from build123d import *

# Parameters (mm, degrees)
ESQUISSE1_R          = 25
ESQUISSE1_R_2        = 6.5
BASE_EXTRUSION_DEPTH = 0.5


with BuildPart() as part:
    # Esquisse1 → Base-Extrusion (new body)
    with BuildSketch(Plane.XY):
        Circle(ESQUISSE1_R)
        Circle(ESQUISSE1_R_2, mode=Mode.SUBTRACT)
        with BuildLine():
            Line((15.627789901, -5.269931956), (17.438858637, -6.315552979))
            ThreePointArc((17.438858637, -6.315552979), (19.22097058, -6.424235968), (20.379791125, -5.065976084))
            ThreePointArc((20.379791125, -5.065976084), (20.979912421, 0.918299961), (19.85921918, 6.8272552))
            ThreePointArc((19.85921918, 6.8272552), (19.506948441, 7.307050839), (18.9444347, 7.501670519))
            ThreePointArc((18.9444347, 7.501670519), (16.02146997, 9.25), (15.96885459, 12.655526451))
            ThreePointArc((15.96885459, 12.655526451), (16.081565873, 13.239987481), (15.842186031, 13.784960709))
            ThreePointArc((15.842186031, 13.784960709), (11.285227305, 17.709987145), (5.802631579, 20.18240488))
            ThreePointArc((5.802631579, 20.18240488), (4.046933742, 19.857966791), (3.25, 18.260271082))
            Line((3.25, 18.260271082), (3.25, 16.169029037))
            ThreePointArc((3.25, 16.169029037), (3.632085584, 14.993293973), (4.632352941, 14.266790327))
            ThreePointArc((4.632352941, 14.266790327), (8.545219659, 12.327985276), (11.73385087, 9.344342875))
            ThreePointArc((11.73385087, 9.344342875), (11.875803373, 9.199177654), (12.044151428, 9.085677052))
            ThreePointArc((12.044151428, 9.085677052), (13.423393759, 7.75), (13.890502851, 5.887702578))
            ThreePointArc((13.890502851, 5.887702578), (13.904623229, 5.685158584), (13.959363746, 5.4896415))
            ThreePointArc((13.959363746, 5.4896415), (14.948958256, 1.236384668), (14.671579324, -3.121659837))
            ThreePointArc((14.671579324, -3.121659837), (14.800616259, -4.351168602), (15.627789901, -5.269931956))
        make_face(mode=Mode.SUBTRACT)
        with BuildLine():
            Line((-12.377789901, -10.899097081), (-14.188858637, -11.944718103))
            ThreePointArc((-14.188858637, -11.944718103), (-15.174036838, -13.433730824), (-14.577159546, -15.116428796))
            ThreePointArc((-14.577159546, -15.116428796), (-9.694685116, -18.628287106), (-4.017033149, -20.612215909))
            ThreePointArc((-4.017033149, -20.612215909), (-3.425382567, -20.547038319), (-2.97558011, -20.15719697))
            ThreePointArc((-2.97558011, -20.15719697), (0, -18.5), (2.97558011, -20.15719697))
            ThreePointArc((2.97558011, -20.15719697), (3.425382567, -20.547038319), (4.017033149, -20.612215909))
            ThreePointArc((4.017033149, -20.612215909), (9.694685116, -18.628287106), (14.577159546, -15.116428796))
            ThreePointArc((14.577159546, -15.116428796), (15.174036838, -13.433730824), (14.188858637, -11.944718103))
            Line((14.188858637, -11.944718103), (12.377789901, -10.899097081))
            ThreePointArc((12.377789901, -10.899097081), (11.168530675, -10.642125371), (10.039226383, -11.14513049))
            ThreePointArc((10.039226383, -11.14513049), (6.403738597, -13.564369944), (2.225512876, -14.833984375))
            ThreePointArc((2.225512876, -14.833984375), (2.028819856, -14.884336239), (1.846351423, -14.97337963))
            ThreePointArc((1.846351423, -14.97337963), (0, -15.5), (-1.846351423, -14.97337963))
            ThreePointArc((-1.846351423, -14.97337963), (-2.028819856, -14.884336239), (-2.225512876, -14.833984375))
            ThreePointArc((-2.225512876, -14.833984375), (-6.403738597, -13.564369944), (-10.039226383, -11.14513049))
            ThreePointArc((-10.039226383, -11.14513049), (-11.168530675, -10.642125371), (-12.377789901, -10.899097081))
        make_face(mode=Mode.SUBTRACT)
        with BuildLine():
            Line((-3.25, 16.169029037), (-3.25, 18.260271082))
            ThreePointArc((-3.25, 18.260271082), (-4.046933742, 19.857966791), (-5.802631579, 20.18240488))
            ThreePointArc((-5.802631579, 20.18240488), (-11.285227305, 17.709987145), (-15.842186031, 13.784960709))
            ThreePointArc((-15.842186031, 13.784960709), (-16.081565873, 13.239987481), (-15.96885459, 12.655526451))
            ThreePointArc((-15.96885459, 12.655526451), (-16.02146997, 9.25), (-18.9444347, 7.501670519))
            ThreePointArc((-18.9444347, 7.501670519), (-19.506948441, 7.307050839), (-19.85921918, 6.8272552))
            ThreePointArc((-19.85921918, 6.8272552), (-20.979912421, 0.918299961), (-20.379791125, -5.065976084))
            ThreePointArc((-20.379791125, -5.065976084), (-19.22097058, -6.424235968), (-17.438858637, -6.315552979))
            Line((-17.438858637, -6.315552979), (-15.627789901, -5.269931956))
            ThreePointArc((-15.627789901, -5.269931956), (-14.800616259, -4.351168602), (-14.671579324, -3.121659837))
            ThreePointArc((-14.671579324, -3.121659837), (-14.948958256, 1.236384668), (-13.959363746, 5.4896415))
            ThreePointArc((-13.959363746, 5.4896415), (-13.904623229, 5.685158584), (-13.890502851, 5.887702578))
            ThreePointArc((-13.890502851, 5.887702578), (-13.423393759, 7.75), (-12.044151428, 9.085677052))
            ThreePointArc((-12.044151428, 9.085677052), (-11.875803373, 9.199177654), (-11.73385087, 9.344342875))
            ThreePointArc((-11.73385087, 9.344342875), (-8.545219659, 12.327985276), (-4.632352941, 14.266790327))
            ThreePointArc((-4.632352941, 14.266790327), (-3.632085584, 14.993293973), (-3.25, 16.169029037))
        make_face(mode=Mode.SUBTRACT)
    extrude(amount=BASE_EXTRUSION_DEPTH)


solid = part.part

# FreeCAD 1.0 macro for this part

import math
import FreeCAD as App
import Part
import Sketcher

V = App.Vector
Q = App.Units.Quantity

doc = App.newDocument("Part")
body = doc.addObject("PartDesign::Body", "Body")

sketch1 = doc.addObject("Sketcher::SketchObject", "Sketch")
body.addObject(sketch1)
sketch1.AttachmentSupport = (doc.XY_Plane, [""])
sketch1.MapMode = "FlatFace"
sketch1.addGeometry([
    Part.Circle(V(0, 0, 0), V(0, 0, 1), 25),
    Part.LineSegment(V(-14.19, -11.94, 0), V(-12.38, -10.9, 0)),
    Part.ArcOfCircle(Part.Circle(V(-11.38, -12.63, 0), V(0, 0, 1), 2), math.radians(48), math.radians(120)),
    Part.ArcOfCircle(Part.Circle(V(0, 0, 0), V(0, 0, 1), 15), math.radians(-132), math.radians(-99)),
    Part.ArcOfCircle(Part.Circle(V(-2.37, -15.82, 0), V(0, 0, 1), 1), math.radians(58), math.radians(81)),
    Part.ArcOfCircle(Part.Circle(V(0, -12, 0), V(0, 0, 1), 3.5), math.radians(-122), math.radians(-58)),
    Part.ArcOfCircle(Part.Circle(V(2.37, -15.82, 0), V(0, 0, 1), 1), math.radians(99), math.radians(122)),
    Part.ArcOfCircle(Part.Circle(V(0, 0, 0), V(0, 0, 1), 15), math.radians(-81), math.radians(-48)),
    Part.ArcOfCircle(Part.Circle(V(11.38, -12.63, 0), V(0, 0, 1), 2), math.radians(60), math.radians(132)),
    Part.LineSegment(V(12.38, -10.9, 0), V(14.19, -11.94, 0)),
    Part.ArcOfCircle(Part.Circle(V(13.19, -13.68, 0), V(0, 0, 1), 2), math.radians(-46), math.radians(60)),
    Part.ArcOfCircle(Part.Circle(V(0, 0, 0), V(0, 0, 1), 21), math.radians(-79), math.radians(-46)),
    Part.ArcOfCircle(Part.Circle(V(3.83, -19.63, 0), V(0, 0, 1), 1), math.radians(-148), math.radians(-79)),
    Part.ArcOfCircle(Part.Circle(V(0, -22, 0), V(0, 0, 1), 3.5), math.radians(32), math.radians(148)),
    Part.ArcOfCircle(Part.Circle(V(-3.83, -19.63, 0), V(0, 0, 1), 1), math.radians(-101), math.radians(-32)),
    Part.ArcOfCircle(Part.Circle(V(0, 0, 0), V(0, 0, 1), 21), math.radians(-134), math.radians(-101)),
    Part.ArcOfCircle(Part.Circle(V(-13.19, -13.68, 0), V(0, 0, 1), 2), math.radians(120), math.radians(226)),
    Part.LineSegment(V(-3.25, 18.26, 0), V(-3.25, 16.17, 0)),
    Part.ArcOfCircle(Part.Circle(V(-5.25, 16.17, 0), V(0, 0, 1), 2), math.radians(-72), math.radians(0)),
    Part.ArcOfCircle(Part.Circle(V(0, 0, 0), V(0, 0, 1), 15), math.radians(108), math.radians(141)),
    Part.ArcOfCircle(Part.Circle(V(-12.52, 9.97, 0), V(0, 0, 1), 1), math.radians(-62), math.radians(-39)),
    Part.ArcOfCircle(Part.Circle(V(-10.39, 6, 0), V(0, 0, 1), 3.5), math.radians(118), math.radians(182)),
    Part.ArcOfCircle(Part.Circle(V(-14.89, 5.86, 0), V(0, 0, 1), 1), math.radians(-21), math.radians(2)),
    Part.ArcOfCircle(Part.Circle(V(0, 0, 0), V(0, 0, 1), 15), math.radians(159), math.radians(192)),
    Part.ArcOfCircle(Part.Circle(V(-16.63, -3.54, 0), V(0, 0, 1), 2), math.radians(-60), math.radians(12)),
    Part.LineSegment(V(-15.63, -5.27, 0), V(-17.44, -6.32, 0)),
    Part.ArcOfCircle(Part.Circle(V(-18.44, -4.58, 0), V(0, 0, 1), 2), math.radians(-166), math.radians(-60)),
    Part.ArcOfCircle(Part.Circle(V(0, 0, 0), V(0, 0, 1), 21), math.radians(161), math.radians(194)),
    Part.ArcOfCircle(Part.Circle(V(-18.91, 6.5, 0), V(0, 0, 1), 1), math.radians(92), math.radians(161)),
    Part.ArcOfCircle(Part.Circle(V(-19.05, 11, 0), V(0, 0, 1), 3.5), math.radians(-88), math.radians(28)),
    Part.ArcOfCircle(Part.Circle(V(-15.09, 13.13, 0), V(0, 0, 1), 1), math.radians(139), math.radians(208)),
    Part.ArcOfCircle(Part.Circle(V(0, 0, 0), V(0, 0, 1), 21), math.radians(106), math.radians(139)),
    Part.ArcOfCircle(Part.Circle(V(-5.25, 18.26, 0), V(0, 0, 1), 2), math.radians(0), math.radians(106)),
    Part.Circle(V(0, 0, 0), V(0, 0, 1), 6.5),
    Part.LineSegment(V(17.44, -6.32, 0), V(15.63, -5.27, 0)),
    Part.ArcOfCircle(Part.Circle(V(16.63, -3.54, 0), V(0, 0, 1), 2), math.radians(168), math.radians(240)),
    Part.ArcOfCircle(Part.Circle(V(0, 0, 0), V(0, 0, 1), 15), math.radians(-12), math.radians(21)),
    Part.ArcOfCircle(Part.Circle(V(14.89, 5.86, 0), V(0, 0, 1), 1), math.radians(178), math.radians(201)),
    Part.ArcOfCircle(Part.Circle(V(10.39, 6, 0), V(0, 0, 1), 3.5), math.radians(-2), math.radians(62)),
    Part.ArcOfCircle(Part.Circle(V(12.52, 9.97, 0), V(0, 0, 1), 1), math.radians(-141), math.radians(-118)),
    Part.ArcOfCircle(Part.Circle(V(0, 0, 0), V(0, 0, 1), 15), math.radians(39), math.radians(72)),
    Part.ArcOfCircle(Part.Circle(V(5.25, 16.17, 0), V(0, 0, 1), 2), math.radians(-180), math.radians(-108)),
    Part.LineSegment(V(3.25, 16.17, 0), V(3.25, 18.26, 0)),
    Part.ArcOfCircle(Part.Circle(V(5.25, 18.26, 0), V(0, 0, 1), 2), math.radians(74), math.radians(180)),
    Part.ArcOfCircle(Part.Circle(V(0, 0, 0), V(0, 0, 1), 21), math.radians(41), math.radians(74)),
    Part.ArcOfCircle(Part.Circle(V(15.09, 13.13, 0), V(0, 0, 1), 1), math.radians(-28), math.radians(41)),
    Part.ArcOfCircle(Part.Circle(V(19.05, 11, 0), V(0, 0, 1), 3.5), math.radians(152), math.radians(268)),
    Part.ArcOfCircle(Part.Circle(V(18.91, 6.5, 0), V(0, 0, 1), 1), math.radians(19), math.radians(88)),
    Part.ArcOfCircle(Part.Circle(V(0, 0, 0), V(0, 0, 1), 21), math.radians(-14), math.radians(19)),
    Part.ArcOfCircle(Part.Circle(V(18.44, -4.58, 0), V(0, 0, 1), 2), math.radians(-120), math.radians(-14)),
], False)
sketch1.addConstraint([
    Sketcher.Constraint("Tangent", 1, 2, 2, 2),
    Sketcher.Constraint("Tangent", 2, 1, 3, 1),
    Sketcher.Constraint("Tangent", 3, 2, 4, 2),
    Sketcher.Constraint("Tangent", 4, 1, 5, 1),
    Sketcher.Constraint("Tangent", 5, 2, 6, 2),
    Sketcher.Constraint("Tangent", 6, 1, 7, 1),
    Sketcher.Constraint("Tangent", 7, 2, 8, 2),
    Sketcher.Constraint("Tangent", 8, 1, 9, 1),
    Sketcher.Constraint("Tangent", 9, 2, 10, 2),
    Sketcher.Constraint("Tangent", 10, 1, 11, 2),
    Sketcher.Constraint("Tangent", 11, 1, 12, 2),
    Sketcher.Constraint("Tangent", 12, 1, 13, 1),
    Sketcher.Constraint("Tangent", 13, 2, 14, 2),
    Sketcher.Constraint("Tangent", 14, 1, 15, 2),
    Sketcher.Constraint("Tangent", 15, 1, 16, 2),
    Sketcher.Constraint("Tangent", 16, 1, 1, 1),
    Sketcher.Constraint("Tangent", 17, 2, 18, 2),
    Sketcher.Constraint("Tangent", 18, 1, 19, 1),
    Sketcher.Constraint("Tangent", 19, 2, 20, 2),
    Sketcher.Constraint("Tangent", 20, 1, 21, 1),
    Sketcher.Constraint("Tangent", 21, 2, 22, 2),
    Sketcher.Constraint("Tangent", 22, 1, 23, 1),
    Sketcher.Constraint("Tangent", 23, 2, 24, 2),
    Sketcher.Constraint("Tangent", 24, 1, 25, 1),
    Sketcher.Constraint("Tangent", 25, 2, 26, 2),
    Sketcher.Constraint("Tangent", 26, 1, 27, 2),
    Sketcher.Constraint("Tangent", 27, 1, 28, 2),
    Sketcher.Constraint("Tangent", 28, 1, 29, 1),
    Sketcher.Constraint("Tangent", 29, 2, 30, 2),
    Sketcher.Constraint("Tangent", 30, 1, 31, 2),
    Sketcher.Constraint("Tangent", 31, 1, 32, 2),
    Sketcher.Constraint("Tangent", 32, 1, 17, 1),
    Sketcher.Constraint("Tangent", 34, 2, 35, 2),
    Sketcher.Constraint("Tangent", 35, 1, 36, 1),
    Sketcher.Constraint("Tangent", 36, 2, 37, 2),
    Sketcher.Constraint("Tangent", 37, 1, 38, 1),
    Sketcher.Constraint("Tangent", 38, 2, 39, 2),
    Sketcher.Constraint("Tangent", 39, 1, 40, 1),
    Sketcher.Constraint("Tangent", 40, 2, 41, 2),
    Sketcher.Constraint("Tangent", 41, 1, 42, 1),
    Sketcher.Constraint("Tangent", 42, 2, 43, 2),
    Sketcher.Constraint("Tangent", 43, 1, 44, 2),
    Sketcher.Constraint("Tangent", 44, 1, 45, 2),
    Sketcher.Constraint("Tangent", 45, 1, 46, 1),
    Sketcher.Constraint("Tangent", 46, 2, 47, 2),
    Sketcher.Constraint("Tangent", 47, 1, 48, 2),
    Sketcher.Constraint("Tangent", 48, 1, 49, 2),
    Sketcher.Constraint("Tangent", 49, 1, 34, 1),
    Sketcher.Constraint("Vertical", 17),
    Sketcher.Constraint("Vertical", 42),
    Sketcher.Constraint("Coincident", 0, 3, -1, 1),
    Sketcher.Constraint("Coincident", 3, 3, -1, 1),
    Sketcher.Constraint("Coincident", 7, 3, -1, 1),
    Sketcher.Constraint("Coincident", 11, 3, -1, 1),
    Sketcher.Constraint("Coincident", 15, 3, -1, 1),
    Sketcher.Constraint("Coincident", 19, 3, -1, 1),
    Sketcher.Constraint("Coincident", 23, 3, -1, 1),
    Sketcher.Constraint("Coincident", 27, 3, -1, 1),
    Sketcher.Constraint("Coincident", 31, 3, -1, 1),
    Sketcher.Constraint("Coincident", 33, 3, -1, 1),
    Sketcher.Constraint("Coincident", 36, 3, -1, 1),
    Sketcher.Constraint("Coincident", 40, 3, -1, 1),
    Sketcher.Constraint("Coincident", 44, 3, -1, 1),
    Sketcher.Constraint("Coincident", 48, 3, -1, 1),
    Sketcher.Constraint("Equal", 4, 6),
    Sketcher.Constraint("Equal", 3, 7),
    Sketcher.Constraint("Equal", 2, 8),
    Sketcher.Constraint("Equal", 8, 10),
    Sketcher.Constraint("Equal", 6, 12),
    Sketcher.Constraint("Equal", 5, 13),
    Sketcher.Constraint("Equal", 12, 14),
    Sketcher.Constraint("Equal", 11, 15),
    Sketcher.Constraint("Equal", 10, 16),
    Sketcher.Constraint("Equal", 16, 18),
    Sketcher.Constraint("Equal", 7, 19),
    Sketcher.Constraint("Equal", 14, 20),
    Sketcher.Constraint("Equal", 13, 21),
    Sketcher.Constraint("Equal", 20, 22),
    Sketcher.Constraint("Equal", 19, 23),
    Sketcher.Constraint("Equal", 18, 24),
    Sketcher.Constraint("Equal", 24, 26),
    Sketcher.Constraint("Equal", 15, 27),
    Sketcher.Constraint("Equal", 22, 28),
    Sketcher.Constraint("Equal", 21, 29),
    Sketcher.Constraint("Equal", 28, 30),
    Sketcher.Constraint("Equal", 27, 31),
    Sketcher.Constraint("Equal", 26, 32),
    Sketcher.Constraint("Equal", 32, 35),
    Sketcher.Constraint("Equal", 23, 36),
    Sketcher.Constraint("Equal", 30, 37),
    Sketcher.Constraint("Equal", 29, 38),
    Sketcher.Constraint("Equal", 37, 39),
    Sketcher.Constraint("Equal", 36, 40),
    Sketcher.Constraint("Equal", 35, 41),
    Sketcher.Constraint("Equal", 41, 43),
    Sketcher.Constraint("Equal", 31, 44),
    Sketcher.Constraint("Equal", 39, 45),
    Sketcher.Constraint("Equal", 38, 46),
    Sketcher.Constraint("Equal", 45, 47),
    Sketcher.Constraint("Equal", 44, 48),
    Sketcher.Constraint("Equal", 43, 49),
    Sketcher.Constraint("Symmetric", 21, 3, 38, 3, -2),
    Sketcher.Constraint("Symmetric", 29, 3, 46, 3, -2),
    Sketcher.Constraint("Symmetric", 1, 2, 8, 1, -2),
    Sketcher.Constraint("Symmetric", 24, 1, 34, 2, -2),
    Sketcher.Constraint("PointOnObject", 5, 3, -2),
    Sketcher.Constraint("PointOnObject", 13, 3, -2),
    Sketcher.Constraint("Parallel", 1, 25),
    Sketcher.Constraint("Horizontal", 18, 3, 41, 3),
    Sketcher.Constraint("Equal", 9, 25),
    Sketcher.Constraint("Diameter", 0, 50.0),
    Sketcher.Constraint("Diameter", 33, 13.0),
    Sketcher.Constraint("Radius", 2, 2.0),
    Sketcher.Constraint("Radius", 3, 15.0),
    Sketcher.Constraint("Radius", 4, 1.0),
    Sketcher.Constraint("Radius", 11, 21.0),
    Sketcher.Constraint("Radius", 5, 3.5),
    Sketcher.Constraint("Angle", 1, Q("30 deg")),
    Sketcher.Constraint("DistanceY", 5, 3, -1, 1, 12.0),
    Sketcher.Constraint("DistanceY", 13, 3, -1, 1, 22.0),
    Sketcher.Constraint("DistanceY", -1, 1, 21, 3, 6.0),
    Sketcher.Constraint("DistanceY", -1, 1, 29, 3, 11.0),
    Sketcher.Constraint("DistanceX", 18, 3, -1, 1, 5.25),
    Sketcher.Constraint("DistanceY", -1, 1, 20, 3, 9.967299),
    Sketcher.Constraint("DistanceX", 2, 3, -1, 1, 11.37779),
    Sketcher.Constraint("DistanceX", 29, 3, -1, 1, 19.052559),
])
pad1 = doc.addObject("PartDesign::Pad", "Pad")
body.addObject(pad1)
pad1.Profile = sketch1
pad1.Length = 0.5

doc.recompute()
